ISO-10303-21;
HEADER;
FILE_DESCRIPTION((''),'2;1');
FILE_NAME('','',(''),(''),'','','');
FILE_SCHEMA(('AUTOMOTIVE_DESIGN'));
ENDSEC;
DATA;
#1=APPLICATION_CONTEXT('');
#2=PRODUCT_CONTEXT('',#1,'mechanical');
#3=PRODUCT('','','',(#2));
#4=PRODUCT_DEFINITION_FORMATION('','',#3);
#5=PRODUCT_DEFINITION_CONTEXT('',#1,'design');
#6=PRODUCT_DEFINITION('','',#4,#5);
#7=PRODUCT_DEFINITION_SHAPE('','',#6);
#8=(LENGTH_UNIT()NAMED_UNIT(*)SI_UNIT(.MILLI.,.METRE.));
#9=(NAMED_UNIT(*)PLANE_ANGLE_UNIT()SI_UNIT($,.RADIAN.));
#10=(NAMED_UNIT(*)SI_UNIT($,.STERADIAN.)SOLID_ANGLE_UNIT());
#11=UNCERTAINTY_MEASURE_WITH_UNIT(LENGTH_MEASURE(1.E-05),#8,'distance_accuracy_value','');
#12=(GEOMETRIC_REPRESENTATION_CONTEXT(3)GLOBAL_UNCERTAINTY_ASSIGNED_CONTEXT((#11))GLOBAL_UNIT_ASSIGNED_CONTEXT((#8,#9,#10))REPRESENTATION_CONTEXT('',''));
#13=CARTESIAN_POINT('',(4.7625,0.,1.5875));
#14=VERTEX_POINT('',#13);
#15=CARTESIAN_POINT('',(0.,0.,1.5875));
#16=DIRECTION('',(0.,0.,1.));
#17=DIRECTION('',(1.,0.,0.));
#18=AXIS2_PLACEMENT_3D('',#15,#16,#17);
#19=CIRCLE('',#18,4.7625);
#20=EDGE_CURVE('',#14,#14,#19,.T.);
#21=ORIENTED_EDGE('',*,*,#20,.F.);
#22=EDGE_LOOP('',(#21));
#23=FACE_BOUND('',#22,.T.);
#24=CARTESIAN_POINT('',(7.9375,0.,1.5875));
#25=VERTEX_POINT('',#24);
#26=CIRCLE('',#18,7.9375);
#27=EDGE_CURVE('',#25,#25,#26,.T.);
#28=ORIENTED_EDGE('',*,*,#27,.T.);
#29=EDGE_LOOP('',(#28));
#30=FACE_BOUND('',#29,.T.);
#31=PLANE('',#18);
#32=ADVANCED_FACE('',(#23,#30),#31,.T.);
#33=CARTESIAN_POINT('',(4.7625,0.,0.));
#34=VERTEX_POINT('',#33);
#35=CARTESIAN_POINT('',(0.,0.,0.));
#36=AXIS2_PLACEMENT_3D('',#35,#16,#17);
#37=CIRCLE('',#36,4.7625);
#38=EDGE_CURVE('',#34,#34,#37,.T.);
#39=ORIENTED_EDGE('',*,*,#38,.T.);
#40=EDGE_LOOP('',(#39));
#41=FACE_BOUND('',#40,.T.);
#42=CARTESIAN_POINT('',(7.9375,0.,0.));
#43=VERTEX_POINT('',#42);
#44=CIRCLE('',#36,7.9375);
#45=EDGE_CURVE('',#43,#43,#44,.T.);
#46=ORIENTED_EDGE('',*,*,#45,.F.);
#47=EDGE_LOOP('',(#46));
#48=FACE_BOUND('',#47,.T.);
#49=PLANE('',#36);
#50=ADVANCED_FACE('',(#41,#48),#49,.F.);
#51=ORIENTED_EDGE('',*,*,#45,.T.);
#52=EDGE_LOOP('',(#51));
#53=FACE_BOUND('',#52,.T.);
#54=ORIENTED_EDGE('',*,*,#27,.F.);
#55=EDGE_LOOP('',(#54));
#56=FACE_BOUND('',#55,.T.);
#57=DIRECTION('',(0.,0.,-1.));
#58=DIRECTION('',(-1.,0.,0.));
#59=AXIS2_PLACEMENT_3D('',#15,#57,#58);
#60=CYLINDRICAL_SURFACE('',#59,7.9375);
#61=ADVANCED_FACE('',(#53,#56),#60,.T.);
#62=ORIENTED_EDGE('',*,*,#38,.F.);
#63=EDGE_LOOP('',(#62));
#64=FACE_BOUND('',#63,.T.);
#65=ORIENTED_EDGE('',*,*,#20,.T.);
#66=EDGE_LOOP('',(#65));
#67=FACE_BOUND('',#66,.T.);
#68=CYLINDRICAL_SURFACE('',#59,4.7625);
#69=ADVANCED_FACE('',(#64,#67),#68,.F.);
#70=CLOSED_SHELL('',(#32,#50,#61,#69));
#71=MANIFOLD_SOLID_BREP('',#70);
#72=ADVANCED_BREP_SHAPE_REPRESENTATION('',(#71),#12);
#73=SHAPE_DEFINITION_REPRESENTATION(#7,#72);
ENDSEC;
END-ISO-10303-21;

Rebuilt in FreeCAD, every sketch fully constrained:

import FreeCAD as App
import Part
import Sketcher
from FreeCAD import Vector
Q = App.Units.Quantity

doc = App.newDocument("Part")
params = doc.addObject("Spreadsheet::Sheet", "Params")
for row, (alias, value) in enumerate([
    ("sketch1_diameter", "0.625 in"),
    ("sketch1_diameter2", "0.375 in"),
    ("pad1_length", "0.0625 in"),
], start=1):
    params.set(f"A{row}", alias)
    params.set(f"B{row}", "=" + value)
    params.setAlias(f"B{row}", alias)

body = doc.addObject("PartDesign::Body", "Body")

# Sketch on XY plane
sketch1 = doc.addObject("Sketcher::SketchObject", "Sketch")
body.addObject(sketch1)
sketch1.AttachmentSupport = (doc.XY_Plane, [""])
sketch1.MapMode = "FlatFace"
sketch1.addGeometry(Part.Circle(Vector(0, 0, 0), Vector(0, 0, 1), 7.9), False)
sketch1.addGeometry(Part.Circle(Vector(0, 0, 0), Vector(0, 0, 1), 4.8), False)
sketch1.addConstraint(Sketcher.Constraint("Coincident", 0, 3, -1, 1))
sketch1.addConstraint(Sketcher.Constraint("Coincident", 1, 3, -1, 1))
sketch1.addConstraint(Sketcher.Constraint("Diameter", 0, Q("0.625 in")))
sketch1.addConstraint(Sketcher.Constraint("Diameter", 1, Q("0.375 in")))
sketch1.setExpression("Constraints[2]", "Params.sketch1_diameter")
sketch1.setExpression("Constraints[3]", "Params.sketch1_diameter2")
pad1 = doc.addObject("PartDesign::Pad", "Pad")
body.addObject(pad1)
pad1.Profile = sketch1
pad1.setExpression("Length", "Params.pad1_length")

doc.recompute()
